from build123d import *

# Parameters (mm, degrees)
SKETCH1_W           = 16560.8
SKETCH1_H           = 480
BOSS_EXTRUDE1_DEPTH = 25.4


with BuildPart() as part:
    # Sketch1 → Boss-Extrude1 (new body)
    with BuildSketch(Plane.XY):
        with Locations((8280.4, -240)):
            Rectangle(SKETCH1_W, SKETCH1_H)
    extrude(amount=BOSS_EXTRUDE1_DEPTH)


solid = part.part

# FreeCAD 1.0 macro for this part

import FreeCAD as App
import Part
import Sketcher

V = App.Vector
Q = App.Units.Quantity


def add_polygon(sketch, points):
    """Adds a closed chain of lines whose ends are joined by coincident constraints."""
    first, n = sketch.GeometryCount, len(points)
    for a, b in zip(points, points[1:] + points[:1]):
        sketch.addGeometry(Part.LineSegment(App.Vector(*a, 0), App.Vector(*b, 0)), False)
    for i in range(n):
        sketch.addConstraint(Sketcher.Constraint("Coincident", first + i, 2, first + (i + 1) % n, 1))

doc = App.newDocument("Part")
body = doc.addObject("PartDesign::Body", "Body")

sketch1 = body.newObject("Sketcher::SketchObject", "Sketch")
sketch1.AttachmentSupport = (doc.getObject("XY_Plane"), [""])
sketch1.MapMode = "FlatFace"
add_polygon(sketch1, [(0, 0), (0, -480), (16561, -480), (16561, 0)])
sketch1.addConstraint([
    Sketcher.Constraint("Vertical", 0),
    Sketcher.Constraint("Horizontal", 1),
    Sketcher.Constraint("Vertical", 2),
    Sketcher.Constraint("Horizontal", 3),
    Sketcher.Constraint("Coincident", 3, 2, -1, 1),
    Sketcher.Constraint("DistanceX", 1, 1, 1, 2, Q("652 in")),
    Sketcher.Constraint("DistanceY", 0, 2, 0, 1, Q("480 mm")),
])
pad1 = body.newObject("PartDesign::Pad", "Pad")
pad1.Profile = sketch1
pad1.Length = Q("1 in")

doc.recompute()
